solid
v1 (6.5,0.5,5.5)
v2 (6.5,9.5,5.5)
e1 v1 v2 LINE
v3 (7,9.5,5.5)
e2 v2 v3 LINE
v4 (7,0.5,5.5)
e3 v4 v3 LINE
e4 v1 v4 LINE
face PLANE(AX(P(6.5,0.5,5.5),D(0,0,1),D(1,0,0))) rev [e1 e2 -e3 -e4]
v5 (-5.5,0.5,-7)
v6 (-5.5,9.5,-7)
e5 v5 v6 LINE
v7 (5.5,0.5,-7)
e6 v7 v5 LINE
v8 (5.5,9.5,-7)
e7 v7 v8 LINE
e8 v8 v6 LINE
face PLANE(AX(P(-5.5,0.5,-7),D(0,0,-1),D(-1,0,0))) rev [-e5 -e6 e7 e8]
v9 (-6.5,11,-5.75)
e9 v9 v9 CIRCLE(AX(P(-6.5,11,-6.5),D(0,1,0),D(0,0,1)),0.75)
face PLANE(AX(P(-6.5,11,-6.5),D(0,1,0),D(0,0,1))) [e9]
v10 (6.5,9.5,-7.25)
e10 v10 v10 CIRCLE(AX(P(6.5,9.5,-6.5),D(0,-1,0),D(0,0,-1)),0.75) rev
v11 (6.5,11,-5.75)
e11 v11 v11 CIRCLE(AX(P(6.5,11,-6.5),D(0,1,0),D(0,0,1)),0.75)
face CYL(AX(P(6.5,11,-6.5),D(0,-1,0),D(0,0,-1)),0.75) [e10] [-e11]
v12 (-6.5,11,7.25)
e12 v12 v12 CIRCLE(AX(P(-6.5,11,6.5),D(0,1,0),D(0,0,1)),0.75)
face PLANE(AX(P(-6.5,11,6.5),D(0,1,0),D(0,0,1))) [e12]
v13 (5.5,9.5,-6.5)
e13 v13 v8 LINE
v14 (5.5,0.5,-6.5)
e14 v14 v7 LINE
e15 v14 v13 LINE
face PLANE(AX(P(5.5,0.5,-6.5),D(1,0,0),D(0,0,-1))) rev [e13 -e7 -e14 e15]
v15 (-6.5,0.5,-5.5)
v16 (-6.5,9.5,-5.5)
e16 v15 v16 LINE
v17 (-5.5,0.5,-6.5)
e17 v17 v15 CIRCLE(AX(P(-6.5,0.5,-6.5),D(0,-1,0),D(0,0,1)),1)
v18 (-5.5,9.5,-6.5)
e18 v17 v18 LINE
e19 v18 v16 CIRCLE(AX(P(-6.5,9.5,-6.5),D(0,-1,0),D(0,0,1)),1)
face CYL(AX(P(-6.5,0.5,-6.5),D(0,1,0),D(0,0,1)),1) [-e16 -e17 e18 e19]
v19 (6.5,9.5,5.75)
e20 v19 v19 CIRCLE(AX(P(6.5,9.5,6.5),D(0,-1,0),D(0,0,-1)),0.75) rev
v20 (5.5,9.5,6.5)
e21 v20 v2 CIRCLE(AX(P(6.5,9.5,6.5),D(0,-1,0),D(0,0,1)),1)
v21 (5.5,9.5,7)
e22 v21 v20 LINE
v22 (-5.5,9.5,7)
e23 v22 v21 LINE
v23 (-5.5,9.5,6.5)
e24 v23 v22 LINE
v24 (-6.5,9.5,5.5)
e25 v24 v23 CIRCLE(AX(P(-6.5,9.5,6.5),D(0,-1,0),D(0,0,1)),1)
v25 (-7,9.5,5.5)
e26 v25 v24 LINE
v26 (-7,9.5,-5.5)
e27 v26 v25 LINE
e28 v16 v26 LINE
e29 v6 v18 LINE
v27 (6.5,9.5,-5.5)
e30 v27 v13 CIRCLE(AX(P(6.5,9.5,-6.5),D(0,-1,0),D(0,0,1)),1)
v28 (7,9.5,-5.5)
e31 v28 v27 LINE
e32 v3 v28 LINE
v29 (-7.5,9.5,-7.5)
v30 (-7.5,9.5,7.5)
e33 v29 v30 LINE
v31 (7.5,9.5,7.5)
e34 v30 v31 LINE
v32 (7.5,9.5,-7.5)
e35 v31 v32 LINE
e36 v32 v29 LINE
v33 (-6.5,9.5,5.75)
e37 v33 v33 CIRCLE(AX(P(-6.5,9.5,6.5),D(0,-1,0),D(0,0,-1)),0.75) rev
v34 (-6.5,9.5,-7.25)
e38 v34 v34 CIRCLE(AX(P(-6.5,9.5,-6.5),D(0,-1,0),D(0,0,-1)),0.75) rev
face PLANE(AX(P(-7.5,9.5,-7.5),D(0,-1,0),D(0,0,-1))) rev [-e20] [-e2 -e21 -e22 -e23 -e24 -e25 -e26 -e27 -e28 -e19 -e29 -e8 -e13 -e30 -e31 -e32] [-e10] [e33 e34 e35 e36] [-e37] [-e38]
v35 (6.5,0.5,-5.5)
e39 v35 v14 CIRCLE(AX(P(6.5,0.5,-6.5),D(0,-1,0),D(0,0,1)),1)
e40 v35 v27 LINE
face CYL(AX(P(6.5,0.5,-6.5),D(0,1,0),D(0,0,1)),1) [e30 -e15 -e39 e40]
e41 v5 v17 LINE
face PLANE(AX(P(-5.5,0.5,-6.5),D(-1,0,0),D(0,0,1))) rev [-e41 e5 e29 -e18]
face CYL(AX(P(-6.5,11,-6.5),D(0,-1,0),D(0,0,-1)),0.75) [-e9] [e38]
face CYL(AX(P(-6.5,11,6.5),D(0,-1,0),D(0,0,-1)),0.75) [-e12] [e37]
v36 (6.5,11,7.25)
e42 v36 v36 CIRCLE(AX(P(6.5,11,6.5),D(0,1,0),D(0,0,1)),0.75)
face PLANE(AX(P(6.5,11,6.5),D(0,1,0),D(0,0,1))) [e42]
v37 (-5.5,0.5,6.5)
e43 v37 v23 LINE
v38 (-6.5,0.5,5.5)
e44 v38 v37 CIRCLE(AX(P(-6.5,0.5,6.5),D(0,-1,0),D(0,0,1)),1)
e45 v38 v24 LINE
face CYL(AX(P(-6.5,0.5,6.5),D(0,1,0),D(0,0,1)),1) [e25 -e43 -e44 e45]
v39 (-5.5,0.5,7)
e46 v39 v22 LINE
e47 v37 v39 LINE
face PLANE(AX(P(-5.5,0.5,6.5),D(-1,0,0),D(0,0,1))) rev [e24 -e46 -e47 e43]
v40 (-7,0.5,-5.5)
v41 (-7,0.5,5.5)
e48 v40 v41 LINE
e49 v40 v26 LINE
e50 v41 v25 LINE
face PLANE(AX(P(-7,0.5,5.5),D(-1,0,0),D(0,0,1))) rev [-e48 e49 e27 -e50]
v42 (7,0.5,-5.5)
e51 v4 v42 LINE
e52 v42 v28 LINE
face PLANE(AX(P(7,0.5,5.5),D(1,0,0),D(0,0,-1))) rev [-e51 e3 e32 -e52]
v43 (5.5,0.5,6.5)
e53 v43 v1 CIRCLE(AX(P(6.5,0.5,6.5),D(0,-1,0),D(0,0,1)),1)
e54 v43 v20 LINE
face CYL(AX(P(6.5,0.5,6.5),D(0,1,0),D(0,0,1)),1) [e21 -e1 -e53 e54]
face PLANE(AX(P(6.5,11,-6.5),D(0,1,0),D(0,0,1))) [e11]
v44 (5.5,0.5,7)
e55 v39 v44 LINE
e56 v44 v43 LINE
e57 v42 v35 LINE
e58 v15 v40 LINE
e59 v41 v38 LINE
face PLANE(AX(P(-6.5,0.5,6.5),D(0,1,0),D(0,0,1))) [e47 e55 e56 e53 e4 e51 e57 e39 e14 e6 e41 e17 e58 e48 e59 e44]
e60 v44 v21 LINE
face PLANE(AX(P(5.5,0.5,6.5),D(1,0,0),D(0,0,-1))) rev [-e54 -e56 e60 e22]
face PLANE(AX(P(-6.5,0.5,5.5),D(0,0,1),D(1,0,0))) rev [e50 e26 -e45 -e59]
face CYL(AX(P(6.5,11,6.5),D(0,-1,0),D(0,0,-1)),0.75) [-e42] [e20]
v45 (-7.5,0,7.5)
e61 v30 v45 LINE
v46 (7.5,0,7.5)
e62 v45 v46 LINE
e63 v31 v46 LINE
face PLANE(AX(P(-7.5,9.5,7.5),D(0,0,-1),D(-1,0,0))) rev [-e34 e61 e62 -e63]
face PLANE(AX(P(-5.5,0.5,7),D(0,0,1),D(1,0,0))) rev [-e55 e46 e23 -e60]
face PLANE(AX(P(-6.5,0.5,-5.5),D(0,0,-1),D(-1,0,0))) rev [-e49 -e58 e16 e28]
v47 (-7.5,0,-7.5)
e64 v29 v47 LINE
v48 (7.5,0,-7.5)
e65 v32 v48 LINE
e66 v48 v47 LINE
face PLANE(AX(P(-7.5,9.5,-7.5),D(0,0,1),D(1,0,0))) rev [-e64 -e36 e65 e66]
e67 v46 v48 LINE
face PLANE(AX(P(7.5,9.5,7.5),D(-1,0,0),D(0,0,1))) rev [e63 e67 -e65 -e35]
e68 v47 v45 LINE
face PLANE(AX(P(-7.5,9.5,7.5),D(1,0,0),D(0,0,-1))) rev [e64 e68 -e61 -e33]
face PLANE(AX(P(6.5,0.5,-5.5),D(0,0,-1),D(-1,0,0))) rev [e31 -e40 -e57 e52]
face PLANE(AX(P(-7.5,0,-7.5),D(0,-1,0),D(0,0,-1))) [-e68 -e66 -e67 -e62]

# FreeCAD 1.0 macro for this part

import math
import FreeCAD as App
import Part
import Sketcher

V = App.Vector


def add_polygon(sketch, points):
    """Adds a closed chain of lines whose ends are joined by coincident constraints."""
    first, n = sketch.GeometryCount, len(points)
    for a, b in zip(points, points[1:] + points[:1]):
        sketch.addGeometry(Part.LineSegment(App.Vector(*a, 0), App.Vector(*b, 0)), False)
    for i in range(n):
        sketch.addConstraint(Sketcher.Constraint("Coincident", first + i, 2, first + (i + 1) % n, 1))

doc = App.newDocument("Part")
params = doc.addObject("Spreadsheet::Sheet", "Params")
for row, (alias, value) in enumerate([
    ("sketch1_width", "15 mm"),
    ("pad1_length", "9.5 mm"),
    ("sketch2_radius", "1 mm"),
    ("sketch2_width", "11 mm"),
    ("sketch2_width2", "0.5 mm"),
    ("pocket1_length", "9 mm"),
    ("sketch3_diameter", "1.5 mm"),
    ("pad2_length", "1.5 mm"),
], start=1):
    params.set(f"A{row}", alias)
    params.set(f"B{row}", "=" + value)
    params.setAlias(f"B{row}", alias)

body = doc.addObject("PartDesign::Body", "Body")

# Sketch on XZ plane
sketch1 = doc.addObject("Sketcher::SketchObject", "Sketch")
body.addObject(sketch1)
sketch1.AttachmentSupport = (doc.XZ_Plane, [""])
sketch1.MapMode = "FlatFace"
add_polygon(sketch1, [(-7.5, -7.5), (-7.5, 7.5), (7.5, 7.5), (7.5, -7.5)])  # lines 0-3
sketch1.addConstraint([
    Sketcher.Constraint("Vertical", 0),
    Sketcher.Constraint("Horizontal", 1),
    Sketcher.Constraint("Vertical", 2),
    Sketcher.Constraint("Horizontal", 3),
    Sketcher.Constraint("Symmetric", 0, 2, 2, 2, -1, 1),
    Sketcher.Constraint("Equal", 3, 0),
    Sketcher.Constraint("DistanceX", 1, 1, 1, 2, 15.0),
])
sketch1.setExpression("Constraints[10]", "Params.sketch1_width")
pad1 = doc.addObject("PartDesign::Pad", "Pad")
body.addObject(pad1)
pad1.Profile = sketch1
pad1.setExpression("Length", "Params.pad1_length")
pad1.Reversed = True

# Sketch on XZ plane
sketch2 = doc.addObject("Sketcher::SketchObject", "Sketch001")
body.addObject(sketch2)
sketch2.AttachmentSupport = (doc.XZ_Plane, [""])
sketch2.MapMode = "FlatFace"
sketch2.AttachmentOffset = App.Placement(V(0, 0, -9.5), App.Rotation())
sketch2.addGeometry([
    Part.LineSegment(V(-6.5, -5.5, 0), V(-7, -5.5, 0)),  # 0
    Part.LineSegment(V(-7, -5.5, 0), V(-7, 5.5, 0)),  # 1
    Part.LineSegment(V(-7, 5.5, 0), V(-6.5, 5.5, 0)),  # 2
    Part.ArcOfCircle(Part.Circle(V(-6.5, 6.5, 0), V(0, 0, 1), 1), math.radians(-90), math.radians(0)),  # 3
    Part.LineSegment(V(-5.5, 6.5, 0), V(-5.5, 7, 0)),  # 4
    Part.LineSegment(V(-5.5, 7, 0), V(5.5, 7, 0)),  # 5
    Part.LineSegment(V(5.5, 7, 0), V(5.5, 6.5, 0)),  # 6
    Part.ArcOfCircle(Part.Circle(V(6.5, 6.5, 0), V(0, 0, 1), 1), math.radians(-180), math.radians(-90)),  # 7
    Part.LineSegment(V(6.5, 5.5, 0), V(7, 5.5, 0)),  # 8
    Part.LineSegment(V(7, 5.5, 0), V(7, -5.5, 0)),  # 9
    Part.LineSegment(V(7, -5.5, 0), V(6.5, -5.5, 0)),  # 10
    Part.ArcOfCircle(Part.Circle(V(6.5, -6.5, 0), V(0, 0, 1), 1), math.radians(90), math.radians(180)),  # 11
    Part.LineSegment(V(5.5, -6.5, 0), V(5.5, -7, 0)),  # 12
    Part.LineSegment(V(5.5, -7, 0), V(-5.5, -7, 0)),  # 13
    Part.LineSegment(V(-5.5, -7, 0), V(-5.5, -6.5, 0)),  # 14
    Part.ArcOfCircle(Part.Circle(V(-6.5, -6.5, 0), V(0, 0, 1), 1), math.radians(0), math.radians(90)),  # 15
], False)
sketch2.addConstraint([
    Sketcher.Constraint("Coincident", 0, 2, 1, 1),
    Sketcher.Constraint("Coincident", 1, 2, 2, 1),
    Sketcher.Constraint("Tangent", 2, 2, 3, 1),
    Sketcher.Constraint("Tangent", 3, 2, 4, 1),
    Sketcher.Constraint("Coincident", 4, 2, 5, 1),
    Sketcher.Constraint("Coincident", 5, 2, 6, 1),
    Sketcher.Constraint("Tangent", 6, 2, 7, 1),
    Sketcher.Constraint("Tangent", 7, 2, 8, 1),
    Sketcher.Constraint("Coincident", 8, 2, 9, 1),
    Sketcher.Constraint("Coincident", 9, 2, 10, 1),
    Sketcher.Constraint("Tangent", 10, 2, 11, 1),
    Sketcher.Constraint("Tangent", 11, 2, 12, 1),
    Sketcher.Constraint("Coincident", 12, 2, 13, 1),
    Sketcher.Constraint("Coincident", 13, 2, 14, 1),
    Sketcher.Constraint("Tangent", 14, 2, 15, 1),
    Sketcher.Constraint("Tangent", 15, 2, 0, 1),
    Sketcher.Constraint("Horizontal", 0),
    Sketcher.Constraint("Vertical", 1),
    Sketcher.Constraint("Horizontal", 2),
    Sketcher.Constraint("Vertical", 4),
    Sketcher.Constraint("Horizontal", 5),
    Sketcher.Constraint("Vertical", 6),
    Sketcher.Constraint("Horizontal", 8),
    Sketcher.Constraint("Vertical", 9),
    Sketcher.Constraint("Horizontal", 10),
    Sketcher.Constraint("Vertical", 12),
    Sketcher.Constraint("Horizontal", 13),
    Sketcher.Constraint("Vertical", 14),
    Sketcher.Constraint("Equal", 3, 7),
    Sketcher.Constraint("Equal", 7, 11),
    Sketcher.Constraint("Equal", 11, 15),
    Sketcher.Constraint("Symmetric", 3, 3, 11, 3, -1, 1),
    Sketcher.Constraint("Symmetric", 7, 3, 15, 3, -1, 1),
    Sketcher.Constraint("Symmetric", 3, 3, 7, 3, -2),
    Sketcher.Constraint("Equal", 2, 8),
    Sketcher.Constraint("Equal", 13, 1),
    Sketcher.Constraint("Equal", 10, 4),
    Sketcher.Constraint("Equal", 6, 12),
    Sketcher.Constraint("Radius", 3, 1.0),
    Sketcher.Constraint("DistanceX", 5, 1, 5, 2, 11.0),
    Sketcher.Constraint("DistanceX", 0, 2, 0, 1, 0.5),
])
sketch2.setExpression("Constraints[38]", "Params.sketch2_radius")
sketch2.setExpression("Constraints[39]", "Params.sketch2_width")
sketch2.setExpression("Constraints[40]", "Params.sketch2_width2")
pocket1 = doc.addObject("PartDesign::Pocket", "Pocket")
body.addObject(pocket1)
pocket1.Profile = sketch2
pocket1.setExpression("Length", "Params.pocket1_length")
pocket1.Reversed = True

# Sketch on XZ plane
sketch3 = doc.addObject("Sketcher::SketchObject", "Sketch002")
body.addObject(sketch3)
sketch3.AttachmentSupport = (doc.XZ_Plane, [""])
sketch3.MapMode = "FlatFace"
sketch3.AttachmentOffset = App.Placement(V(0, 0, -9.5), App.Rotation())
sketch3.addGeometry([
    Part.Circle(V(-6.5, -6.5, 0), V(0, 0, 1), 0.75),
    Part.Circle(V(-6.5, 6.5, 0), V(0, 0, 1), 0.75),
    Part.Circle(V(6.5, 6.5, 0), V(0, 0, 1), 0.75),
    Part.Circle(V(6.5, -6.5, 0), V(0, 0, 1), 0.75),
], False)
sketch3.addConstraint([
    Sketcher.Constraint("Equal", 0, 1),
    Sketcher.Constraint("Equal", 1, 2),
    Sketcher.Constraint("Equal", 2, 3),
    Sketcher.Constraint("Symmetric", 0, 3, 2, 3, -1, 1),
    Sketcher.Constraint("Symmetric", 1, 3, 3, 3, -1, 1),
    Sketcher.Constraint("Symmetric", 1, 3, 2, 3, -2),
    Sketcher.Constraint("Diameter", 0, 1.5),
    Sketcher.Constraint("DistanceY", 0, 3, 1, 3, 13.0),
    Sketcher.Constraint("DistanceX", 1, 3, 2, 3, 13.0),
])
sketch3.setExpression("Constraints[6]", "Params.sketch3_diameter")
pad2 = doc.addObject("PartDesign::Pad", "Pad001")
body.addObject(pad2)
pad2.Profile = sketch3
pad2.setExpression("Length", "Params.pad2_length")
pad2.Reversed = True

doc.recompute()
